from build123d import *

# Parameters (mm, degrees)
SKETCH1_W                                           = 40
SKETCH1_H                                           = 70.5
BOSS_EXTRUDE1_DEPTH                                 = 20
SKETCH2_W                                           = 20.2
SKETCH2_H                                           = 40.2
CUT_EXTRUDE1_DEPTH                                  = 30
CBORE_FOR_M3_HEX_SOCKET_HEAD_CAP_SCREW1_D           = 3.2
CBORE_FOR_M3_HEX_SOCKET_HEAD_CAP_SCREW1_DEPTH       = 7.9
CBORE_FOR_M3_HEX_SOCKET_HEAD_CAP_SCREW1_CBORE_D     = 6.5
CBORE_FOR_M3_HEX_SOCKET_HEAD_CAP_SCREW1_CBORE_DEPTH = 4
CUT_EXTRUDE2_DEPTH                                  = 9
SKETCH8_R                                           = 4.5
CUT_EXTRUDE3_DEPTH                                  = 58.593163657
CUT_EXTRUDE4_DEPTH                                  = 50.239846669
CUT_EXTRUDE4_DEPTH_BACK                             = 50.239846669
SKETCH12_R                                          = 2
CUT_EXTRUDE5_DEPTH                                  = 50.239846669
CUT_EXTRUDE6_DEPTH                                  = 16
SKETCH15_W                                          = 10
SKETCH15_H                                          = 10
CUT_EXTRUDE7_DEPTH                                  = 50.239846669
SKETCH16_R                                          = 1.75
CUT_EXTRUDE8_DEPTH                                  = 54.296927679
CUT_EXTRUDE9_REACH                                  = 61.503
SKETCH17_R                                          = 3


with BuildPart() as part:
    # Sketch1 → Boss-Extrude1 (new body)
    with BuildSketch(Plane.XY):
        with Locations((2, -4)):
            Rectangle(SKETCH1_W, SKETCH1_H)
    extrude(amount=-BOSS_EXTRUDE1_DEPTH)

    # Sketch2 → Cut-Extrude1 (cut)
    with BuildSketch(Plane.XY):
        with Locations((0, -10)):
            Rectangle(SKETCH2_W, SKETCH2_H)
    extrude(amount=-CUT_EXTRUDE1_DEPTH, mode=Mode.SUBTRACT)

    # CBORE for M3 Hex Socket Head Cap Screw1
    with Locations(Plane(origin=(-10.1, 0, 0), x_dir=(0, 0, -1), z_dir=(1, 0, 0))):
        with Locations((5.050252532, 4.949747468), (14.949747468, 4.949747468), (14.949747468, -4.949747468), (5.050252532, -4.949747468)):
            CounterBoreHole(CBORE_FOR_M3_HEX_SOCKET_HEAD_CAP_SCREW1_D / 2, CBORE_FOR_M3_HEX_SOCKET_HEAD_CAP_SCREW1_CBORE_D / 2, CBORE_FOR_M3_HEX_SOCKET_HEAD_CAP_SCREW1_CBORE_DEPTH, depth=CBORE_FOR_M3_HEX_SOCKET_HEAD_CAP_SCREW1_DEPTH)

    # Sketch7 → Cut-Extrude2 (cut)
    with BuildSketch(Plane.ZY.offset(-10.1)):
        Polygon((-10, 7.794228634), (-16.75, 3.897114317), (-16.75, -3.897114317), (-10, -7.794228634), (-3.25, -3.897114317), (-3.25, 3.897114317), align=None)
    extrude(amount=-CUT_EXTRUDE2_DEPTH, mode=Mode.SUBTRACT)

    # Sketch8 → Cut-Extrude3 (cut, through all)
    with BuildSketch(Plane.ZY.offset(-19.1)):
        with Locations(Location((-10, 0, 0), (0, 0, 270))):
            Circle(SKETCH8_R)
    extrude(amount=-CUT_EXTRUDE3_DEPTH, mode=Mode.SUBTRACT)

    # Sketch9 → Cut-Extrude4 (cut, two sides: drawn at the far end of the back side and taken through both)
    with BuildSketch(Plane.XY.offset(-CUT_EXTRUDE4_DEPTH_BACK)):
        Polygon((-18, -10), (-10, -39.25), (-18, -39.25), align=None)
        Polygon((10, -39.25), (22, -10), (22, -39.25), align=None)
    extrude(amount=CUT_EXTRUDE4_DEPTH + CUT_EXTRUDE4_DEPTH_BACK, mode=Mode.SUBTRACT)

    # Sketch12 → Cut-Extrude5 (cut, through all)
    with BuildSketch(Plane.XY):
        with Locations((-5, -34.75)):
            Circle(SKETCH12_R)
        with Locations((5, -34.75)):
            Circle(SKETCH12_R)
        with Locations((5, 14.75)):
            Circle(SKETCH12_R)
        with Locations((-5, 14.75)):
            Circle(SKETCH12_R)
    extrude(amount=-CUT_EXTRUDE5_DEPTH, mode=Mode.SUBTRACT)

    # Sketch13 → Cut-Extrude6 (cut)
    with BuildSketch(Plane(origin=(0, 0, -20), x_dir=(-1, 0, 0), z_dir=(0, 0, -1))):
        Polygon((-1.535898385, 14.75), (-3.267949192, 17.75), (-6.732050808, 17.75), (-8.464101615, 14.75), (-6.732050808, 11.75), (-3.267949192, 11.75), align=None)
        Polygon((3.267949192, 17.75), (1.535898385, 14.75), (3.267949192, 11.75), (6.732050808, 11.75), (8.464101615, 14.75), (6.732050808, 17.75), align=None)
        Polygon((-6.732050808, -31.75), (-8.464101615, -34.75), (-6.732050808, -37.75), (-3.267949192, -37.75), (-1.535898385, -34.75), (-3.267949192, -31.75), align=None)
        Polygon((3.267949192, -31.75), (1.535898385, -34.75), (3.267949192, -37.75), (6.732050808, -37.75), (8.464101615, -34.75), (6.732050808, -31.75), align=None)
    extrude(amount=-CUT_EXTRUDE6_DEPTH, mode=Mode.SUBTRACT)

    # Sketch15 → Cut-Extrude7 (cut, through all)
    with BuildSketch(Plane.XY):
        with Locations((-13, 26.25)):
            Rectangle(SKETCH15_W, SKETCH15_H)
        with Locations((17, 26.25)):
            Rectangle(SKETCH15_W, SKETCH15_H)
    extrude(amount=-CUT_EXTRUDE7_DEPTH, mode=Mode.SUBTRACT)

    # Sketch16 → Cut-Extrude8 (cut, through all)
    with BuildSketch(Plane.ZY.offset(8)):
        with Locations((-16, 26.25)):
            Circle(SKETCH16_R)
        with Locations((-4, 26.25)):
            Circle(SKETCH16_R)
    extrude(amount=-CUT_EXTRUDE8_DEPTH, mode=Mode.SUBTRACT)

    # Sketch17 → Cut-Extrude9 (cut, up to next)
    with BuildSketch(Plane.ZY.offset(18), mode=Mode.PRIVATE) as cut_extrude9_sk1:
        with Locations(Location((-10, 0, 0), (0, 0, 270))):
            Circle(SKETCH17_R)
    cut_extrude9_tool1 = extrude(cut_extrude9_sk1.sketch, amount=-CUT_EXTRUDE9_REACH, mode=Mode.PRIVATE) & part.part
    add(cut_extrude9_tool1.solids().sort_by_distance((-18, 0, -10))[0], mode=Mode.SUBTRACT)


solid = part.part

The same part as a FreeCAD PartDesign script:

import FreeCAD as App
import Part
import Sketcher
Q = App.Units.Quantity

doc = App.newDocument("Part")
body = doc.addObject("PartDesign::Body", "Body")

sketch1 = body.newObject("Sketcher::SketchObject", "Sketch")
sketch1.AttachmentSupport = (doc.getObject("XY_Plane"), [""])
sketch1.MapMode = "FlatFace"
sketch1.addGeometry([
    Part.LineSegment(App.Vector(-18, 31, 0), App.Vector(-18, -39, 0)),
    Part.LineSegment(App.Vector(-18, -39, 0), App.Vector(22, -39, 0)),
    Part.LineSegment(App.Vector(22, -39, 0), App.Vector(22, 31, 0)),
    Part.LineSegment(App.Vector(22, 31, 0), App.Vector(-18, 31, 0)),
], False)
sketch1.addConstraint([
    Sketcher.Constraint("Coincident", 0, 2, 1, 1),
    Sketcher.Constraint("Coincident", 1, 2, 2, 1),
    Sketcher.Constraint("Coincident", 2, 2, 3, 1),
    Sketcher.Constraint("Coincident", 3, 2, 0, 1),
    Sketcher.Constraint("Vertical", 0),
    Sketcher.Constraint("Horizontal", 1),
    Sketcher.Constraint("Vertical", 2),
    Sketcher.Constraint("Horizontal", 3),
    Sketcher.Constraint("DistanceX", 1, 1, 1, 2, 40.0),
    Sketcher.Constraint("DistanceY", 0, 2, 0, 1, 70.5),
    Sketcher.Constraint("DistanceX", 0, 2, -1, 1, 18.0),
    Sketcher.Constraint("DistanceY", 0, 2, -1, 1, 39.25),
])
pad1 = body.newObject("PartDesign::Pad", "Pad")
pad1.Profile = sketch1
pad1.Length = 20
pad1.Reversed = True

sketch2 = body.newObject("Sketcher::SketchObject", "Sketch001")
sketch2.AttachmentSupport = (doc.getObject("XY_Plane"), [""])
sketch2.MapMode = "FlatFace"
sketch2.addGeometry([
    Part.LineSegment(App.Vector(-10, 10, 0), App.Vector(-10, -30, 0)),
    Part.LineSegment(App.Vector(-10, -30, 0), App.Vector(10, -30, 0)),
    Part.LineSegment(App.Vector(10, -30, 0), App.Vector(10, 10, 0)),
    Part.LineSegment(App.Vector(10, 10, 0), App.Vector(-10, 10, 0)),
], False)
sketch2.addConstraint([
    Sketcher.Constraint("Coincident", 0, 2, 1, 1),
    Sketcher.Constraint("Coincident", 1, 2, 2, 1),
    Sketcher.Constraint("Coincident", 2, 2, 3, 1),
    Sketcher.Constraint("Coincident", 3, 2, 0, 1),
    Sketcher.Constraint("Vertical", 0),
    Sketcher.Constraint("Horizontal", 1),
    Sketcher.Constraint("Vertical", 2),
    Sketcher.Constraint("Horizontal", 3),
    Sketcher.Constraint("DistanceX", 1, 1, 1, 2, 20.2),
    Sketcher.Constraint("DistanceY", 0, 2, 0, 1, 40.2),
    Sketcher.Constraint("DistanceX", 0, 2, -1, 1, 10.1),
    Sketcher.Constraint("DistanceY", 0, 2, -1, 1, 30.1),
])
pocket1 = body.newObject("PartDesign::Pocket", "Pocket")
pocket1.Profile = sketch2
pocket1.Length = 30

sketch3 = body.newObject("Sketcher::SketchObject", "Sketch002")
sketch3.AttachmentSupport = (doc.getObject("YZ_Plane"), [""])
sketch3.MapMode = "FlatFace"
sketch3.AttachmentOffset = App.Placement(App.Vector(0, 0, -10.1), App.Rotation())
sketch3.addGeometry([
    Part.Circle(App.Vector(4.9, -5.1, 0), App.Vector(0, 0, 1), 1.6),
    Part.Circle(App.Vector(4.9, -14.9, 0), App.Vector(0, 0, 1), 1.6),
    Part.Circle(App.Vector(-4.9, -14.9, 0), App.Vector(0, 0, 1), 1.6),
    Part.Circle(App.Vector(-4.9, -5.1, 0), App.Vector(0, 0, 1), 1.6),
], False)
sketch3.addConstraint([
    Sketcher.Constraint("Equal", 0, 1),
    Sketcher.Constraint("Equal", 1, 2),
    Sketcher.Constraint("Equal", 2, 3),
    Sketcher.Constraint("Symmetric", 1, 3, 2, 3, -2),
    Sketcher.Constraint("Symmetric", 0, 3, 3, 3, -2),
    Sketcher.Constraint("Vertical", 0, 3, 1, 3),
    Sketcher.Constraint("Diameter", 0, 3.2),
    Sketcher.Constraint("DistanceX", -1, 1, 0, 3, 4.949747),
    Sketcher.Constraint("DistanceY", 0, 3, -1, 1, 5.050253),
    Sketcher.Constraint("DistanceY", 1, 3, -1, 1, 14.949747),
])
doc.recompute()
hole = body.newObject("PartDesign::Hole", "Hole")
hole.Profile = sketch3
hole.ThreadType = "None"
hole.Diameter = 3.2
hole.DepthType = "Dimension"
hole.Depth = 7.9
hole.DrillPoint = "Flat"
hole.HoleCutType = "Counterbore"
hole.HoleCutDiameter = 6.5
hole.HoleCutDepth = 4

sketch4 = body.newObject("Sketcher::SketchObject", "Sketch003")
sketch4.AttachmentSupport = (doc.getObject("YZ_Plane"), [""])
sketch4.MapMode = "FlatFace"
sketch4.AttachmentOffset = App.Placement(App.Vector(0, 0, 10.1), App.Rotation())
sketch4.addGeometry([
    Part.LineSegment(App.Vector(8, -10, 0), App.Vector(4, -17, 0)),
    Part.LineSegment(App.Vector(4, -17, 0), App.Vector(-4, -17, 0)),
    Part.LineSegment(App.Vector(-4, -17, 0), App.Vector(-8, -10, 0)),
    Part.LineSegment(App.Vector(-8, -10, 0), App.Vector(-4, -3, 0)),
    Part.LineSegment(App.Vector(-4, -3, 0), App.Vector(4, -3, 0)),
    Part.LineSegment(App.Vector(4, -3, 0), App.Vector(8, -10, 0)),
], False)
sketch4.addConstraint([
    Sketcher.Constraint("Coincident", 0, 2, 1, 1),
    Sketcher.Constraint("Coincident", 1, 2, 2, 1),
    Sketcher.Constraint("Coincident", 2, 2, 3, 1),
    Sketcher.Constraint("Coincident", 3, 2, 4, 1),
    Sketcher.Constraint("Coincident", 4, 2, 5, 1),
    Sketcher.Constraint("Coincident", 5, 2, 0, 1),
    Sketcher.Constraint("Horizontal", 1),
    Sketcher.Constraint("Horizontal", 4),
    Sketcher.Constraint("Symmetric", 2, 2, 5, 2, -2),
    Sketcher.Constraint("Parallel", 0, 3),
    Sketcher.Constraint("Parallel", 2, 5),
    Sketcher.Constraint("Vertical", 1, 2, 3, 2),
    Sketcher.Constraint("Vertical", 0, 2, 4, 2),
    Sketcher.Constraint("Angle", 0, Q("-120 deg")),
    Sketcher.Constraint("DistanceY", 2, 2, -1, 1, 10.0),
    Sketcher.Constraint("DistanceY", 1, 2, 3, 2, 13.5),
    Sketcher.Constraint("DistanceX", 1, 2, 1, 1, 7.794229),
])
pocket2 = body.newObject("PartDesign::Pocket", "Pocket001")
pocket2.Profile = sketch4
pocket2.Length = 9
pocket2.Reversed = True

sketch5 = body.newObject("Sketcher::SketchObject", "Sketch004")
sketch5.AttachmentSupport = (doc.getObject("YZ_Plane"), [""])
sketch5.MapMode = "FlatFace"
sketch5.AttachmentOffset = App.Placement(App.Vector(0, 0, 19.1), App.Rotation())
sketch5.addGeometry(Part.Circle(App.Vector(0, -10, 0), App.Vector(0, 0, 1), 4.5), False)
sketch5.addConstraint([
    Sketcher.Constraint("PointOnObject", 0, 3, -2),
    Sketcher.Constraint("Diameter", 0, 9.0),
    Sketcher.Constraint("DistanceY", 0, 3, -1, 1, 10.0),
])
pocket3 = body.newObject("PartDesign::Pocket", "Pocket002")
pocket3.Profile = sketch5
pocket3.Type = "ThroughAll"
pocket3.Reversed = True

sketch6 = body.newObject("Sketcher::SketchObject", "Sketch005")
sketch6.AttachmentSupport = (doc.getObject("XY_Plane"), [""])
sketch6.MapMode = "FlatFace"
sketch6.addGeometry([
    Part.LineSegment(App.Vector(-10, -39, 0), App.Vector(-18, -10, 0)),
    Part.LineSegment(App.Vector(-18, -10, 0), App.Vector(-18, -39, 0)),
    Part.LineSegment(App.Vector(-18, -39, 0), App.Vector(-10, -39, 0)),
    Part.LineSegment(App.Vector(22, -10, 0), App.Vector(10, -39, 0)),
    Part.LineSegment(App.Vector(10, -39, 0), App.Vector(22, -39, 0)),
    Part.LineSegment(App.Vector(22, -39, 0), App.Vector(22, -10, 0)),
], False)
sketch6.addConstraint([
    Sketcher.Constraint("Coincident", 0, 2, 1, 1),
    Sketcher.Constraint("Coincident", 1, 2, 2, 1),
    Sketcher.Constraint("Coincident", 2, 2, 0, 1),
    Sketcher.Constraint("Coincident", 3, 2, 4, 1),
    Sketcher.Constraint("Coincident", 4, 2, 5, 1),
    Sketcher.Constraint("Coincident", 5, 2, 3, 1),
    Sketcher.Constraint("Vertical", 1),
    Sketcher.Constraint("Horizontal", 2),
    Sketcher.Constraint("Horizontal", 4),
    Sketcher.Constraint("Vertical", 5),
    Sketcher.Constraint("Symmetric", 2, 2, 3, 2, -2),
    Sketcher.Constraint("Horizontal", 0, 2, 5, 2),
    Sketcher.Constraint("DistanceX", 2, 1, 2, 2, 8.0),
    Sketcher.Constraint("DistanceX", 4, 1, 4, 2, 12.0),
    Sketcher.Constraint("DistanceX", 0, 2, -1, 1, 18.0),
    Sketcher.Constraint("DistanceY", 0, 2, -1, 1, 10.0),
    Sketcher.Constraint("DistanceY", 1, 2, 1, 1, 29.25),
])
pocket4 = body.newObject("PartDesign::Pocket", "Pocket003")
pocket4.Profile = sketch6
pocket4.Type = "ThroughAll"
pocket4.Midplane = True

sketch7 = body.newObject("Sketcher::SketchObject", "Sketch006")
sketch7.AttachmentSupport = (doc.getObject("XY_Plane"), [""])
sketch7.MapMode = "FlatFace"
sketch7.addGeometry([
    Part.Circle(App.Vector(-5, -34.8, 0), App.Vector(0, 0, 1), 2),
    Part.Circle(App.Vector(5, -34.8, 0), App.Vector(0, 0, 1), 2),
    Part.Circle(App.Vector(5, 14.8, 0), App.Vector(0, 0, 1), 2),
    Part.Circle(App.Vector(-5, 14.8, 0), App.Vector(0, 0, 1), 2),
], False)
sketch7.addConstraint([
    Sketcher.Constraint("Equal", 0, 1),
    Sketcher.Constraint("Equal", 1, 2),
    Sketcher.Constraint("Equal", 2, 3),
    Sketcher.Constraint("Symmetric", 0, 3, 1, 3, -2),
    Sketcher.Constraint("Symmetric", 2, 3, 3, 3, -2),
    Sketcher.Constraint("Vertical", 1, 3, 2, 3),
    Sketcher.Constraint("Diameter", 0, 4.0),
    Sketcher.Constraint("DistanceX", 0, 3, -1, 1, 5.0),
    Sketcher.Constraint("DistanceY", 1, 3, 2, 3, 49.5),
    Sketcher.Constraint("DistanceY", 0, 3, -1, 1, 34.75),
])
pocket5 = body.newObject("PartDesign::Pocket", "Pocket004")
pocket5.Profile = sketch7
pocket5.Type = "ThroughAll"

sketch8 = body.newObject("Sketcher::SketchObject", "Sketch007")
sketch8.AttachmentSupport = (doc.getObject("XY_Plane"), [""])
sketch8.MapMode = "FlatFace"
sketch8.AttachmentOffset = App.Placement(App.Vector(0, 0, -20), App.Rotation())
sketch8.addGeometry([
    Part.LineSegment(App.Vector(1.5, 14.8, 0), App.Vector(3.3, 17.8, 0)),
    Part.LineSegment(App.Vector(3.3, 17.8, 0), App.Vector(6.7, 17.8, 0)),
    Part.LineSegment(App.Vector(6.7, 17.8, 0), App.Vector(8.5, 14.8, 0)),
    Part.LineSegment(App.Vector(8.5, 14.8, 0), App.Vector(6.7, 11.8, 0)),
    Part.LineSegment(App.Vector(6.7, 11.8, 0), App.Vector(3.3, 11.8, 0)),
    Part.LineSegment(App.Vector(3.3, 11.8, 0), App.Vector(1.5, 14.8, 0)),
    Part.LineSegment(App.Vector(-3.3, 17.8, 0), App.Vector(-1.5, 14.8, 0)),
    Part.LineSegment(App.Vector(-1.5, 14.8, 0), App.Vector(-3.3, 11.8, 0)),
    Part.LineSegment(App.Vector(-3.3, 11.8, 0), App.Vector(-6.7, 11.8, 0)),
    Part.LineSegment(App.Vector(-6.7, 11.8, 0), App.Vector(-8.5, 14.8, 0)),
    Part.LineSegment(App.Vector(-8.5, 14.8, 0), App.Vector(-6.7, 17.8, 0)),
    Part.LineSegment(App.Vector(-6.7, 17.8, 0), App.Vector(-3.3, 17.8, 0)),
    Part.LineSegment(App.Vector(6.7, -31.8, 0), App.Vector(8.5, -34.8, 0)),
    Part.LineSegment(App.Vector(8.5, -34.8, 0), App.Vector(6.7, -37.8, 0)),
    Part.LineSegment(App.Vector(6.7, -37.8, 0), App.Vector(3.3, -37.8, 0)),
    Part.LineSegment(App.Vector(3.3, -37.8, 0), App.Vector(1.5, -34.8, 0)),
    Part.LineSegment(App.Vector(1.5, -34.8, 0), App.Vector(3.3, -31.8, 0)),
    Part.LineSegment(App.Vector(3.3, -31.8, 0), App.Vector(6.7, -31.8, 0)),
    Part.LineSegment(App.Vector(-3.3, -31.8, 0), App.Vector(-1.5, -34.8, 0)),
    Part.LineSegment(App.Vector(-1.5, -34.8, 0), App.Vector(-3.3, -37.8, 0)),
    Part.LineSegment(App.Vector(-3.3, -37.8, 0), App.Vector(-6.7, -37.8, 0)),
    Part.LineSegment(App.Vector(-6.7, -37.8, 0), App.Vector(-8.5, -34.8, 0)),
    Part.LineSegment(App.Vector(-8.5, -34.8, 0), App.Vector(-6.7, -31.8, 0)),
    Part.LineSegment(App.Vector(-6.7, -31.8, 0), App.Vector(-3.3, -31.8, 0)),
], False)
sketch8.addConstraint([
    Sketcher.Constraint("Coincident", 0, 2, 1, 1),
    Sketcher.Constraint("Coincident", 1, 2, 2, 1),
    Sketcher.Constraint("Coincident", 2, 2, 3, 1),
    Sketcher.Constraint("Coincident", 3, 2, 4, 1),
    Sketcher.Constraint("Coincident", 4, 2, 5, 1),
    Sketcher.Constraint("Coincident", 5, 2, 0, 1),
    Sketcher.Constraint("Coincident", 6, 2, 7, 1),
    Sketcher.Constraint("Coincident", 7, 2, 8, 1),
    Sketcher.Constraint("Coincident", 8, 2, 9, 1),
    Sketcher.Constraint("Coincident", 9, 2, 10, 1),
    Sketcher.Constraint("Coincident", 10, 2, 11, 1),
    Sketcher.Constraint("Coincident", 11, 2, 6, 1),
    Sketcher.Constraint("Coincident", 12, 2, 13, 1),
    Sketcher.Constraint("Coincident", 13, 2, 14, 1),
    Sketcher.Constraint("Coincident", 14, 2, 15, 1),
    Sketcher.Constraint("Coincident", 15, 2, 16, 1),
    Sketcher.Constraint("Coincident", 16, 2, 17, 1),
    Sketcher.Constraint("Coincident", 17, 2, 12, 1),
    Sketcher.Constraint("Coincident", 18, 2, 19, 1),
    Sketcher.Constraint("Coincident", 19, 2, 20, 1),
    Sketcher.Constraint("Coincident", 20, 2, 21, 1),
    Sketcher.Constraint("Coincident", 21, 2, 22, 1),
    Sketcher.Constraint("Coincident", 22, 2, 23, 1),
    Sketcher.Constraint("Coincident", 23, 2, 18, 1),
    Sketcher.Constraint("Horizontal", 1),
    Sketcher.Constraint("Horizontal", 4),
    Sketcher.Constraint("Horizontal", 8),
    Sketcher.Constraint("Horizontal", 11),
    Sketcher.Constraint("Horizontal", 14),
    Sketcher.Constraint("Horizontal", 17),
    Sketcher.Constraint("Horizontal", 20),
    Sketcher.Constraint("Horizontal", 23),
    Sketcher.Constraint("Symmetric", 5, 2, 6, 2, -2),
    Sketcher.Constraint("Symmetric", 4, 2, 7, 2, -2),
    Sketcher.Constraint("Symmetric", 2, 2, 9, 2, -2),
    Sketcher.Constraint("Symmetric", 1, 2, 10, 2, -2),
    Sketcher.Constraint("Symmetric", 15, 2, 18, 2, -2),
    Sketcher.Constraint("Symmetric", 14, 2, 19, 2, -2),
    Sketcher.Constraint("Symmetric", 12, 2, 21, 2, -2),
    Sketcher.Constraint("Symmetric", 17, 2, 22, 2, -2),
    Sketcher.Constraint("Parallel", 0, 3),
    Sketcher.Constraint("Parallel", 2, 5),
    Sketcher.Constraint("Parallel", 5, 6),
    Sketcher.Constraint("Parallel", 3, 7),
    Sketcher.Constraint("Parallel", 6, 9),
    Sketcher.Constraint("Parallel", 9, 12),
    Sketcher.Constraint("Parallel", 10, 13),
    Sketcher.Constraint("Parallel", 12, 15),
    Sketcher.Constraint("Parallel", 13, 16),
    Sketcher.Constraint("Parallel", 15, 18),
    Sketcher.Constraint("Parallel", 18, 21),
    Sketcher.Constraint("Horizontal", 2, 2, 5, 2),
    Sketcher.Constraint("Horizontal", 12, 2, 15, 2),
    Sketcher.Constraint("Vertical", 1, 2, 3, 2),
    Sketcher.Constraint("Vertical", 2, 2, 12, 2),
    Sketcher.Constraint("Vertical", 3, 2, 13, 2),
    Sketcher.Constraint("Vertical", 4, 2, 14, 2),
    Sketcher.Constraint("Vertical", 14, 2, 16, 2),
    Sketcher.Constraint("Angle", 0, Q("60 deg")),
    Sketcher.Constraint("DistanceY", 2, 2, 1, 2, 3.0),
    Sketcher.Constraint("DistanceX", 7, 2, 3, 2, 10.0),
    Sketcher.Constraint("DistanceY", 12, 2, 3, 2, 46.5),
    Sketcher.Constraint("DistanceY", -1, 1, 0, 2, 17.75),
    Sketcher.Constraint("DistanceX", 1, 1, 1, 2, 3.464102),
])
pocket6 = body.newObject("PartDesign::Pocket", "Pocket005")
pocket6.Profile = sketch8
pocket6.Length = 16
pocket6.Reversed = True

sketch9 = body.newObject("Sketcher::SketchObject", "Sketch008")
sketch9.AttachmentSupport = (doc.getObject("XY_Plane"), [""])
sketch9.MapMode = "FlatFace"
sketch9.addGeometry([
    Part.LineSegment(App.Vector(-18, 31, 0), App.Vector(-18, 21, 0)),
    Part.LineSegment(App.Vector(-18, 21, 0), App.Vector(-8, 21, 0)),
    Part.LineSegment(App.Vector(-8, 21, 0), App.Vector(-8, 31, 0)),
    Part.LineSegment(App.Vector(-8, 31, 0), App.Vector(-18, 31, 0)),
    Part.LineSegment(App.Vector(12, 31, 0), App.Vector(12, 21, 0)),
    Part.LineSegment(App.Vector(12, 21, 0), App.Vector(22, 21, 0)),
    Part.LineSegment(App.Vector(22, 21, 0), App.Vector(22, 31, 0)),
    Part.LineSegment(App.Vector(22, 31, 0), App.Vector(12, 31, 0)),
], False)
sketch9.addConstraint([
    Sketcher.Constraint("Coincident", 0, 2, 1, 1),
    Sketcher.Constraint("Coincident", 1, 2, 2, 1),
    Sketcher.Constraint("Coincident", 2, 2, 3, 1),
    Sketcher.Constraint("Coincident", 3, 2, 0, 1),
    Sketcher.Constraint("Coincident", 4, 2, 5, 1),
    Sketcher.Constraint("Coincident", 5, 2, 6, 1),
    Sketcher.Constraint("Coincident", 6, 2, 7, 1),
    Sketcher.Constraint("Coincident", 7, 2, 4, 1),
    Sketcher.Constraint("Vertical", 0),
    Sketcher.Constraint("Horizontal", 1),
    Sketcher.Constraint("Vertical", 2),
    Sketcher.Constraint("Horizontal", 3),
    Sketcher.Constraint("Vertical", 4),
    Sketcher.Constraint("Horizontal", 5),
    Sketcher.Constraint("Vertical", 6),
    Sketcher.Constraint("Horizontal", 7),
    Sketcher.Constraint("Horizontal", 1, 2, 4, 2),
    Sketcher.Constraint("Horizontal", 3, 2, 6, 2),
    Sketcher.Constraint("Equal", 3, 5),
    Sketcher.Constraint("Equal", 7, 0),
    Sketcher.Constraint("DistanceX", 1, 1, 1, 2, 10.0),
    Sketcher.Constraint("DistanceX", 0, 2, -1, 1, 18.0),
    Sketcher.Constraint("DistanceX", -1, 1, 4, 2, 12.0),
    Sketcher.Constraint("DistanceY", -1, 1, 0, 2, 21.25),
])
pocket7 = body.newObject("PartDesign::Pocket", "Pocket006")
pocket7.Profile = sketch9
pocket7.Type = "ThroughAll"

sketch10 = body.newObject("Sketcher::SketchObject", "Sketch009")
sketch10.AttachmentSupport = (doc.getObject("YZ_Plane"), [""])
sketch10.MapMode = "FlatFace"
sketch10.AttachmentOffset = App.Placement(App.Vector(0, 0, -8), App.Rotation())
sketch10.addGeometry([
    Part.Circle(App.Vector(26.2, -16, 0), App.Vector(0, 0, 1), 1.8),
    Part.Circle(App.Vector(26.2, -4, 0), App.Vector(0, 0, 1), 1.8),
], False)
sketch10.addConstraint([
    Sketcher.Constraint("Equal", 0, 1),
    Sketcher.Constraint("Vertical", 0, 3, 1, 3),
    Sketcher.Constraint("Diameter", 0, 3.5),
    Sketcher.Constraint("DistanceY", 0, 3, -1, 1, 16.0),
    Sketcher.Constraint("DistanceY", 1, 3, -1, 1, 4.0),
    Sketcher.Constraint("DistanceX", -1, 1, 0, 3, 26.25),
])
pocket8 = body.newObject("PartDesign::Pocket", "Pocket007")
pocket8.Profile = sketch10
pocket8.Type = "ThroughAll"
pocket8.Reversed = True

sketch11 = body.newObject("Sketcher::SketchObject", "Sketch010")
sketch11.AttachmentSupport = (doc.getObject("YZ_Plane"), [""])
sketch11.MapMode = "FlatFace"
sketch11.AttachmentOffset = App.Placement(App.Vector(0, 0, -18), App.Rotation())
sketch11.addGeometry(Part.Circle(App.Vector(0, -10, 0), App.Vector(0, 0, 1), 3), False)
sketch11.addConstraint([
    Sketcher.Constraint("PointOnObject", 0, 3, -2),
    Sketcher.Constraint("Diameter", 0, 6.0),
    Sketcher.Constraint("DistanceY", 0, 3, -1, 1, 10.0),
])
pocket9 = body.newObject("PartDesign::Pocket", "Pocket008")
pocket9.Profile = sketch11
pocket9.Type = "UpToFirst"
pocket9.Reversed = True

doc.recompute()
